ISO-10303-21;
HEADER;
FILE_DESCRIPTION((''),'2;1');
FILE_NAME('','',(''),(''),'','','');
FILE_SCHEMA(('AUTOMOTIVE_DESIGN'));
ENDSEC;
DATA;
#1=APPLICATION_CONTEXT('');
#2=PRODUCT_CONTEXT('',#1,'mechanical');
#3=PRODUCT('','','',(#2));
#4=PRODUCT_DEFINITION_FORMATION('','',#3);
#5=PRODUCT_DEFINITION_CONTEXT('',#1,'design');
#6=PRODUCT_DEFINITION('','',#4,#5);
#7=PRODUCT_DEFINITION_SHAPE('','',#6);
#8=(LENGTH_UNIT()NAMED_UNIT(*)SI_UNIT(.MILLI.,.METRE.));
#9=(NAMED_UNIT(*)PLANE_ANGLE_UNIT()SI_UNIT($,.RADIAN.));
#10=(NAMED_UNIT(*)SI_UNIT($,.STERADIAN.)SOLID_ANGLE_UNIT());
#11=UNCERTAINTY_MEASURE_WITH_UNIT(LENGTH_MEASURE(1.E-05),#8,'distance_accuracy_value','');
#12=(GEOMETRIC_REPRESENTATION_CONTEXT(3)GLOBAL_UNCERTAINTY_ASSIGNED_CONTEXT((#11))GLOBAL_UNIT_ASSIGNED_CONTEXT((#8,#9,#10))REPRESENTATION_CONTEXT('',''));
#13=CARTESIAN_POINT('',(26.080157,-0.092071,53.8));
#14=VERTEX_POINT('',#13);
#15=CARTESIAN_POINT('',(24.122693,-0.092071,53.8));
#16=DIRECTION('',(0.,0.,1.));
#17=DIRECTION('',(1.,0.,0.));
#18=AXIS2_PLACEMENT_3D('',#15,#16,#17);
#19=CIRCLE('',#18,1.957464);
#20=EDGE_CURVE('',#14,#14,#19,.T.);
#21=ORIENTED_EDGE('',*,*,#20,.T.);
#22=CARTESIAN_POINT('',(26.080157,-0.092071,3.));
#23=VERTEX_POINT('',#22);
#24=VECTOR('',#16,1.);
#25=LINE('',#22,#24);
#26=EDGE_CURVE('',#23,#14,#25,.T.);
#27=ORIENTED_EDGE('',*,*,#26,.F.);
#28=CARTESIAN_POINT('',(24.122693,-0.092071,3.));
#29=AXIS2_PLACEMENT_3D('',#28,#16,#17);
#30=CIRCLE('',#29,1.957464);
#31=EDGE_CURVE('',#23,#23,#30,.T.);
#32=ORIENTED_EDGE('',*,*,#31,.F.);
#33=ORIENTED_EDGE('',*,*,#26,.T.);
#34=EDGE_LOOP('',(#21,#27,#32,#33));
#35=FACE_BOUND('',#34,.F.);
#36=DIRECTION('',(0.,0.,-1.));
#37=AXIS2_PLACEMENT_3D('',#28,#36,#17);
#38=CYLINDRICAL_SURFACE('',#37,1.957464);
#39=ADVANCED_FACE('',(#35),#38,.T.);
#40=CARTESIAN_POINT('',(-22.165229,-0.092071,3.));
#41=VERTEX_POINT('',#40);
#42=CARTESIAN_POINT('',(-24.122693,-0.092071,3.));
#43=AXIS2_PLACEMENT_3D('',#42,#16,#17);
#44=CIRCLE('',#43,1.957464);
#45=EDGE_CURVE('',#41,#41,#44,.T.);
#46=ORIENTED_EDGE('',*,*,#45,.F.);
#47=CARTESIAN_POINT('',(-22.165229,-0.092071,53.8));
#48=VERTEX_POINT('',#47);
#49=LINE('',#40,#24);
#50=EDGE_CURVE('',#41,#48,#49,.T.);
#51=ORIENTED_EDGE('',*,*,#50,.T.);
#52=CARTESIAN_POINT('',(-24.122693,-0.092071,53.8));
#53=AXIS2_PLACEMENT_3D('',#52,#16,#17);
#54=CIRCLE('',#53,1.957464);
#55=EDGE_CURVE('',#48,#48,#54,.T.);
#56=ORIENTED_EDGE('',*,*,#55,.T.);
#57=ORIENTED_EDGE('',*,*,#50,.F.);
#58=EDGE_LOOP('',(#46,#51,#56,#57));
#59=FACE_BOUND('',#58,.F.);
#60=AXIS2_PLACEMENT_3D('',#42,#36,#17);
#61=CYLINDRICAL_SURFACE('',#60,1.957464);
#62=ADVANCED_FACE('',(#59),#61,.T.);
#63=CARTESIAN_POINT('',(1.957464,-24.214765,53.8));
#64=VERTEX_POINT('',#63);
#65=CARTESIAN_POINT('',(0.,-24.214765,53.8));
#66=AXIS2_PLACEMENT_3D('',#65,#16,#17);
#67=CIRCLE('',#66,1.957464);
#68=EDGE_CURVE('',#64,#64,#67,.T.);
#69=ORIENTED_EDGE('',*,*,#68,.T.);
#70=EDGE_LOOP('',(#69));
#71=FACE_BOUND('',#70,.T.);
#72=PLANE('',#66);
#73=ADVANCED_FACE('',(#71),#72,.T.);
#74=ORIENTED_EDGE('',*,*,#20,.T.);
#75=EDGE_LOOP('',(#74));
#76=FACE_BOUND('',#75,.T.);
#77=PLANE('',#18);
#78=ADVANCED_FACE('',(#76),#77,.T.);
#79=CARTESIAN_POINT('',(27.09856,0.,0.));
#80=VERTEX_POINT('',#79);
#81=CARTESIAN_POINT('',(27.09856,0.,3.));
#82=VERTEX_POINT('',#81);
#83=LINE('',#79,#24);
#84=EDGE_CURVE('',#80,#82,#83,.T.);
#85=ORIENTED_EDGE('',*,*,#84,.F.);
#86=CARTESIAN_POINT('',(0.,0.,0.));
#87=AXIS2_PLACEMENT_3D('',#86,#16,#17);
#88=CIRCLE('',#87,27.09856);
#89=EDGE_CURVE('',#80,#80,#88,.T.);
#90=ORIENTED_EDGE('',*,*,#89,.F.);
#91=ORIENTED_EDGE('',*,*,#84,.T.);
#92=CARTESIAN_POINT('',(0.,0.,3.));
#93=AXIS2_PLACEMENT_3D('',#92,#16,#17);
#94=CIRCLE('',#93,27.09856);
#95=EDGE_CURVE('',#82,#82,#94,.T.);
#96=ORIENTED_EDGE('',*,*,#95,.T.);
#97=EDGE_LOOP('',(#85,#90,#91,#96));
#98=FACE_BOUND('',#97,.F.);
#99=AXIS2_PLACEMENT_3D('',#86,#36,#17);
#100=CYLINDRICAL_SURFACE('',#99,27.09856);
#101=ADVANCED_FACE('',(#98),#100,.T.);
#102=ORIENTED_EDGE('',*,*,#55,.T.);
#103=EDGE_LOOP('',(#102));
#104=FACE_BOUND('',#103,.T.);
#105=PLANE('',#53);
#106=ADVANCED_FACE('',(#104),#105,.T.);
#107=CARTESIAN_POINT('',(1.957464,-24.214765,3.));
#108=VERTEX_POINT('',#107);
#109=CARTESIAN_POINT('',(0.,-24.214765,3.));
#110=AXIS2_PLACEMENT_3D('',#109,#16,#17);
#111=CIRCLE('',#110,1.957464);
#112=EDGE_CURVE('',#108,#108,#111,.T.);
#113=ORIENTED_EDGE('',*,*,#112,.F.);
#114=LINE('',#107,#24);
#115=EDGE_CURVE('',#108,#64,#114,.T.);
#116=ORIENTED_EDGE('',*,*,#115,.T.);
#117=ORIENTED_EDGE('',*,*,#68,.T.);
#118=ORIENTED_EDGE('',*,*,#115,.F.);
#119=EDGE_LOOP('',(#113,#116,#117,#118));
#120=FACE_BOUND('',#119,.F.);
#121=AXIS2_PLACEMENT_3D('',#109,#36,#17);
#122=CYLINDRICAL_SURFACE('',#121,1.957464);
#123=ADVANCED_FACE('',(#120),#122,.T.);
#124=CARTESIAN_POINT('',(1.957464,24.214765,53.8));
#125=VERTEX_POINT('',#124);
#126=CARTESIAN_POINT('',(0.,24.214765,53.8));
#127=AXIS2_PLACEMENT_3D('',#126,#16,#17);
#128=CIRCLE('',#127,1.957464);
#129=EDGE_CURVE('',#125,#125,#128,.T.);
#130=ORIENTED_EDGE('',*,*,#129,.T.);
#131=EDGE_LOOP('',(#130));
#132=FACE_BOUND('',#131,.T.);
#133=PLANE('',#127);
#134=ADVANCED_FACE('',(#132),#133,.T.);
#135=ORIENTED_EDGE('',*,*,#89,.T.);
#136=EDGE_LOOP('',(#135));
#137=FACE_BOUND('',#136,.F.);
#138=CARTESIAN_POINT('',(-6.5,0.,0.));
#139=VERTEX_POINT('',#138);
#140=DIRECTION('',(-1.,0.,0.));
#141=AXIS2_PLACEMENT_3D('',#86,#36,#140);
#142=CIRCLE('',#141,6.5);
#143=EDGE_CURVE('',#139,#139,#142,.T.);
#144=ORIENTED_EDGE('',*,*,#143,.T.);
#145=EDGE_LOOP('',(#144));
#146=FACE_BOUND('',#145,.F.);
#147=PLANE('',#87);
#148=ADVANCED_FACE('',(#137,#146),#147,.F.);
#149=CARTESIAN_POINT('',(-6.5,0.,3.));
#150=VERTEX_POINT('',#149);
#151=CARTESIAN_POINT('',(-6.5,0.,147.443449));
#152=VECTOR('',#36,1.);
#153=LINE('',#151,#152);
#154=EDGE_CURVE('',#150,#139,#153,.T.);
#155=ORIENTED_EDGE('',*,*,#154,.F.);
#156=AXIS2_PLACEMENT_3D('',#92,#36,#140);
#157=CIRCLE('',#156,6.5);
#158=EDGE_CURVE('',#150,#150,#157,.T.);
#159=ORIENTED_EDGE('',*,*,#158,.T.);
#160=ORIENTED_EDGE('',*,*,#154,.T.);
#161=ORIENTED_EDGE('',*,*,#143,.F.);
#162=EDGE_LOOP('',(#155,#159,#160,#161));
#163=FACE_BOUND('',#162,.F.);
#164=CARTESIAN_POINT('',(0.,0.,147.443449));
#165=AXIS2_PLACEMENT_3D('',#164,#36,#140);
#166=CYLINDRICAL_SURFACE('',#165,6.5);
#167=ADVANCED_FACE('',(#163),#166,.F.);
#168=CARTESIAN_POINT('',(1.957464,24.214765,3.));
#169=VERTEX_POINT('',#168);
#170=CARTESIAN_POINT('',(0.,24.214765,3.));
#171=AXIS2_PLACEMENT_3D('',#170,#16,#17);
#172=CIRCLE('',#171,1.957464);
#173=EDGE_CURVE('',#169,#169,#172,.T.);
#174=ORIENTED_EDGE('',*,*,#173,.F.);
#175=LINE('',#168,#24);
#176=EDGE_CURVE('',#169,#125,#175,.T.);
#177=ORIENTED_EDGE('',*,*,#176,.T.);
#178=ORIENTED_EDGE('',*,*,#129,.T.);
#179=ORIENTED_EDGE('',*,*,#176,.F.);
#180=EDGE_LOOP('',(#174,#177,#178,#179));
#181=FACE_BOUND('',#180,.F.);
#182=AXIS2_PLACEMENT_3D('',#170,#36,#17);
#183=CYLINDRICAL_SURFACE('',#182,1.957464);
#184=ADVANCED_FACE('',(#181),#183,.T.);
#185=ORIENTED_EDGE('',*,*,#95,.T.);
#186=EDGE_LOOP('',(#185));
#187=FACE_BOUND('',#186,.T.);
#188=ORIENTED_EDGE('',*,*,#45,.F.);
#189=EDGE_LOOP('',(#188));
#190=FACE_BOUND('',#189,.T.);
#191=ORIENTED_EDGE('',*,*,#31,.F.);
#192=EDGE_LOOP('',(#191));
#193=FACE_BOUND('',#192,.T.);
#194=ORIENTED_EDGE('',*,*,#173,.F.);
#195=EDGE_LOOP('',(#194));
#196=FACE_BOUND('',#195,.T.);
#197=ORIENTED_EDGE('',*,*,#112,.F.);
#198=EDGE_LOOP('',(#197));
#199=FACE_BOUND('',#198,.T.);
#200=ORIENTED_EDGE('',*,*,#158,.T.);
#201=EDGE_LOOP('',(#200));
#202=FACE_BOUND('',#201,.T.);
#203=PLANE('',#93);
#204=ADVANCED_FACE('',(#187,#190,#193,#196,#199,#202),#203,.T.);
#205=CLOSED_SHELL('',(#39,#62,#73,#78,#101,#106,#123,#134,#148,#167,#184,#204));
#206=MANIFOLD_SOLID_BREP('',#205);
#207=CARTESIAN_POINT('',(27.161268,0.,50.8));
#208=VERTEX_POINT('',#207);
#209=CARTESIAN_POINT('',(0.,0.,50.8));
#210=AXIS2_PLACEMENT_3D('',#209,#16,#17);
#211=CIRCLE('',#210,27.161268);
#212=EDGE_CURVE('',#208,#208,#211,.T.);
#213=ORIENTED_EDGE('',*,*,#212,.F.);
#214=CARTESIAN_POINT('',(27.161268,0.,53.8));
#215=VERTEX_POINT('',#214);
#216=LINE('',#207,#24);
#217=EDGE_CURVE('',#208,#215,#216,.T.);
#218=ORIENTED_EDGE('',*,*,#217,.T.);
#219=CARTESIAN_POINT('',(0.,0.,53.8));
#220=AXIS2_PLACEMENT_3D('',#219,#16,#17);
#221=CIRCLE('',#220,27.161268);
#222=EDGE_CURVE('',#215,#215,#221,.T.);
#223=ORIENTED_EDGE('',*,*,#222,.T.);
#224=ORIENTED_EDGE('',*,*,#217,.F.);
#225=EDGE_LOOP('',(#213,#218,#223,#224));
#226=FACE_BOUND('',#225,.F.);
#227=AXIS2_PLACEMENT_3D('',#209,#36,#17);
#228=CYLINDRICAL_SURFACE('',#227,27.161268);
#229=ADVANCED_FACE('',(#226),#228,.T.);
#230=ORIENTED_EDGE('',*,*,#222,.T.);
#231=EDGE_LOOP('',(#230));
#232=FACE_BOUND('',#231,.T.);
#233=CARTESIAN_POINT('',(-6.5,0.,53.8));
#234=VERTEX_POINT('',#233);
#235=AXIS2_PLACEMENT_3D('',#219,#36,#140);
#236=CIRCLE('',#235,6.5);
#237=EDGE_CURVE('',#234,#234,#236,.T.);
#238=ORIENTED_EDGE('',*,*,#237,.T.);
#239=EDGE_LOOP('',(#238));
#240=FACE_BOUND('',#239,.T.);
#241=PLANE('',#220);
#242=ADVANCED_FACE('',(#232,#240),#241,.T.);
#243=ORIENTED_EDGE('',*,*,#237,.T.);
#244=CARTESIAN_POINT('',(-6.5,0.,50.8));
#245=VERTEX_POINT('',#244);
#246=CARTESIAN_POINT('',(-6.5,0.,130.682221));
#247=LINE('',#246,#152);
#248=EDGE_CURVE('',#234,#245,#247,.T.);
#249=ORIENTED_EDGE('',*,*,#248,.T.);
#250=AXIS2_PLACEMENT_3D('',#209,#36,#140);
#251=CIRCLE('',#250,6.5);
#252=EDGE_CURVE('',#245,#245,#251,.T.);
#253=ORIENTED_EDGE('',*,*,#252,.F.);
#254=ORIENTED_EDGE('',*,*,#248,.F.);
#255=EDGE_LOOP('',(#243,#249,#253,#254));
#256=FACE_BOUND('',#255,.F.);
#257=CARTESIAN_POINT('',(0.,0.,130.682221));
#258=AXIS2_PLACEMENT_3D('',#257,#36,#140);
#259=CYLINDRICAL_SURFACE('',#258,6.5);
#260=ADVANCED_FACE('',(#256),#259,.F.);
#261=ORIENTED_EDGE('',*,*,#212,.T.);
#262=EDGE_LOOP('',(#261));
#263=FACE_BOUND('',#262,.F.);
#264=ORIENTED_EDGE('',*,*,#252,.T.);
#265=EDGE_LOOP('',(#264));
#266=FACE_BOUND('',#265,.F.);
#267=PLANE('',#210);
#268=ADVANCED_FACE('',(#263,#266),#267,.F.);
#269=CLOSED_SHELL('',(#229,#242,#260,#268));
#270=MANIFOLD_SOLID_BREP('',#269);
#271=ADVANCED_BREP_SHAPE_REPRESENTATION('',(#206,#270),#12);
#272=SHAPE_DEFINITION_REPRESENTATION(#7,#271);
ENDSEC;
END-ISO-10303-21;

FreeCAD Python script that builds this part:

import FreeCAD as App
import Part
import Sketcher
from FreeCAD import Vector
Q = App.Units.Quantity

doc = App.newDocument("Part")
body = doc.addObject("PartDesign::Body", "Body")

# Sketch on XY plane
sketch1 = body.newObject("Sketcher::SketchObject", "Sketch")
sketch1.AttachmentSupport = (doc.getObject("XY_Plane"), [""])
sketch1.MapMode = "FlatFace"
sketch1.addGeometry(Part.Circle(Vector(0, 0, 0), Vector(0, 0, 1), 27), False)
sketch1.addConstraint([
    Sketcher.Constraint("Coincident", 0, 3, -1, 1),
    Sketcher.Constraint("Diameter", 0, Q("54.19712 mm")),
])
pad1 = body.newObject("PartDesign::Pad", "Pad")
pad1.Profile = sketch1
pad1.Length = 3

# Sketch on XY plane
sketch2 = body.newObject("Sketcher::SketchObject", "Sketch001")
sketch2.AttachmentSupport = (doc.getObject("XY_Plane"), [""])
sketch2.MapMode = "FlatFace"
sketch2.AttachmentOffset = App.Placement(Vector(0, 0, 3), App.Rotation())
sketch2.addGeometry([
    Part.Circle(Vector(0, 24.2, 0), Vector(0, 0, 1), 2),
    Part.Circle(Vector(0, -24.2, 0), Vector(0, 0, 1), 2),
    Part.Circle(Vector(-24.1, -0.1, 0), Vector(0, 0, 1), 2),
    Part.Circle(Vector(24.1, -0.1, 0), Vector(0, 0, 1), 2),
], False)
sketch2.addConstraint([
    Sketcher.Constraint("Equal", 0, 1),
    Sketcher.Constraint("Equal", 1, 2),
    Sketcher.Constraint("Equal", 2, 3),
    Sketcher.Constraint("Symmetric", 0, 3, 1, 3, -1, 1),
    Sketcher.Constraint("Symmetric", 2, 3, 3, 3, -2),
    Sketcher.Constraint("PointOnObject", 0, 3, -2),
    Sketcher.Constraint("Diameter", 0, Q("3.914928 mm")),
    Sketcher.Constraint("DistanceY", 2, 3, -1, 1, Q("0.092071 mm")),
    Sketcher.Constraint("DistanceY", 1, 3, 0, 3, Q("48.42953 mm")),
    Sketcher.Constraint("DistanceX", 2, 3, -1, 1, Q("24.122693 mm")),
])
pad2 = body.newObject("PartDesign::Pad", "Pad001")
pad2.Profile = sketch2
pad2.Length = 50.8

# Sketch on XY plane
sketch3 = body.newObject("Sketcher::SketchObject", "Sketch002")
sketch3.AttachmentSupport = (doc.getObject("XY_Plane"), [""])
sketch3.MapMode = "FlatFace"
sketch3.AttachmentOffset = App.Placement(Vector(0, 0, 53.8), App.Rotation())
sketch3.addGeometry(Part.Circle(Vector(0, 0, 0), Vector(0, 0, 1), 6), False)
sketch3.addConstraint([
    Sketcher.Constraint("Coincident", 0, 3, -1, 1),
    Sketcher.Constraint("Diameter", 0, Q("13 mm")),
])
doc.recompute()
hole = body.newObject("PartDesign::Hole", "Hole")
hole.Profile = sketch3
hole.ThreadType = "None"
hole.Diameter = 13
hole.DepthType = "ThroughAll"
body2 = doc.addObject("PartDesign::Body", "Body001")

# Sketch on XY plane
sketch4 = body2.newObject("Sketcher::SketchObject", "Sketch003")
sketch4.AttachmentSupport = (doc.getObject("XY_Plane001"), [""])
sketch4.MapMode = "FlatFace"
sketch4.AttachmentOffset = App.Placement(Vector(0, 0, 50.8), App.Rotation())
sketch4.addGeometry(Part.Circle(Vector(0, 0, 0), Vector(0, 0, 1), 27), False)
sketch4.addConstraint([
    Sketcher.Constraint("Coincident", 0, 3, -1, 1),
    Sketcher.Constraint("Diameter", 0, Q("54.322536 mm")),
])
pad3 = body2.newObject("PartDesign::Pad", "Pad002")
pad3.Profile = sketch4
pad3.Length = 3

# Sketch on XY plane
sketch5 = body2.newObject("Sketcher::SketchObject", "Sketch004")
sketch5.AttachmentSupport = (doc.getObject("XY_Plane001"), [""])
sketch5.MapMode = "FlatFace"
sketch5.AttachmentOffset = App.Placement(Vector(0, 0, 53.8), App.Rotation())
sketch5.addGeometry(Part.Circle(Vector(0, 0, 0), Vector(0, 0, 1), 6), False)
sketch5.addConstraint([
    Sketcher.Constraint("Coincident", 0, 3, -1, 1),
    Sketcher.Constraint("Diameter", 0, Q("13 mm")),
])
doc.recompute()
hole2 = body2.newObject("PartDesign::Hole", "Hole001")
hole2.Profile = sketch5
hole2.ThreadType = "None"
hole2.Diameter = 13
hole2.DepthType = "ThroughAll"

doc.recompute()
